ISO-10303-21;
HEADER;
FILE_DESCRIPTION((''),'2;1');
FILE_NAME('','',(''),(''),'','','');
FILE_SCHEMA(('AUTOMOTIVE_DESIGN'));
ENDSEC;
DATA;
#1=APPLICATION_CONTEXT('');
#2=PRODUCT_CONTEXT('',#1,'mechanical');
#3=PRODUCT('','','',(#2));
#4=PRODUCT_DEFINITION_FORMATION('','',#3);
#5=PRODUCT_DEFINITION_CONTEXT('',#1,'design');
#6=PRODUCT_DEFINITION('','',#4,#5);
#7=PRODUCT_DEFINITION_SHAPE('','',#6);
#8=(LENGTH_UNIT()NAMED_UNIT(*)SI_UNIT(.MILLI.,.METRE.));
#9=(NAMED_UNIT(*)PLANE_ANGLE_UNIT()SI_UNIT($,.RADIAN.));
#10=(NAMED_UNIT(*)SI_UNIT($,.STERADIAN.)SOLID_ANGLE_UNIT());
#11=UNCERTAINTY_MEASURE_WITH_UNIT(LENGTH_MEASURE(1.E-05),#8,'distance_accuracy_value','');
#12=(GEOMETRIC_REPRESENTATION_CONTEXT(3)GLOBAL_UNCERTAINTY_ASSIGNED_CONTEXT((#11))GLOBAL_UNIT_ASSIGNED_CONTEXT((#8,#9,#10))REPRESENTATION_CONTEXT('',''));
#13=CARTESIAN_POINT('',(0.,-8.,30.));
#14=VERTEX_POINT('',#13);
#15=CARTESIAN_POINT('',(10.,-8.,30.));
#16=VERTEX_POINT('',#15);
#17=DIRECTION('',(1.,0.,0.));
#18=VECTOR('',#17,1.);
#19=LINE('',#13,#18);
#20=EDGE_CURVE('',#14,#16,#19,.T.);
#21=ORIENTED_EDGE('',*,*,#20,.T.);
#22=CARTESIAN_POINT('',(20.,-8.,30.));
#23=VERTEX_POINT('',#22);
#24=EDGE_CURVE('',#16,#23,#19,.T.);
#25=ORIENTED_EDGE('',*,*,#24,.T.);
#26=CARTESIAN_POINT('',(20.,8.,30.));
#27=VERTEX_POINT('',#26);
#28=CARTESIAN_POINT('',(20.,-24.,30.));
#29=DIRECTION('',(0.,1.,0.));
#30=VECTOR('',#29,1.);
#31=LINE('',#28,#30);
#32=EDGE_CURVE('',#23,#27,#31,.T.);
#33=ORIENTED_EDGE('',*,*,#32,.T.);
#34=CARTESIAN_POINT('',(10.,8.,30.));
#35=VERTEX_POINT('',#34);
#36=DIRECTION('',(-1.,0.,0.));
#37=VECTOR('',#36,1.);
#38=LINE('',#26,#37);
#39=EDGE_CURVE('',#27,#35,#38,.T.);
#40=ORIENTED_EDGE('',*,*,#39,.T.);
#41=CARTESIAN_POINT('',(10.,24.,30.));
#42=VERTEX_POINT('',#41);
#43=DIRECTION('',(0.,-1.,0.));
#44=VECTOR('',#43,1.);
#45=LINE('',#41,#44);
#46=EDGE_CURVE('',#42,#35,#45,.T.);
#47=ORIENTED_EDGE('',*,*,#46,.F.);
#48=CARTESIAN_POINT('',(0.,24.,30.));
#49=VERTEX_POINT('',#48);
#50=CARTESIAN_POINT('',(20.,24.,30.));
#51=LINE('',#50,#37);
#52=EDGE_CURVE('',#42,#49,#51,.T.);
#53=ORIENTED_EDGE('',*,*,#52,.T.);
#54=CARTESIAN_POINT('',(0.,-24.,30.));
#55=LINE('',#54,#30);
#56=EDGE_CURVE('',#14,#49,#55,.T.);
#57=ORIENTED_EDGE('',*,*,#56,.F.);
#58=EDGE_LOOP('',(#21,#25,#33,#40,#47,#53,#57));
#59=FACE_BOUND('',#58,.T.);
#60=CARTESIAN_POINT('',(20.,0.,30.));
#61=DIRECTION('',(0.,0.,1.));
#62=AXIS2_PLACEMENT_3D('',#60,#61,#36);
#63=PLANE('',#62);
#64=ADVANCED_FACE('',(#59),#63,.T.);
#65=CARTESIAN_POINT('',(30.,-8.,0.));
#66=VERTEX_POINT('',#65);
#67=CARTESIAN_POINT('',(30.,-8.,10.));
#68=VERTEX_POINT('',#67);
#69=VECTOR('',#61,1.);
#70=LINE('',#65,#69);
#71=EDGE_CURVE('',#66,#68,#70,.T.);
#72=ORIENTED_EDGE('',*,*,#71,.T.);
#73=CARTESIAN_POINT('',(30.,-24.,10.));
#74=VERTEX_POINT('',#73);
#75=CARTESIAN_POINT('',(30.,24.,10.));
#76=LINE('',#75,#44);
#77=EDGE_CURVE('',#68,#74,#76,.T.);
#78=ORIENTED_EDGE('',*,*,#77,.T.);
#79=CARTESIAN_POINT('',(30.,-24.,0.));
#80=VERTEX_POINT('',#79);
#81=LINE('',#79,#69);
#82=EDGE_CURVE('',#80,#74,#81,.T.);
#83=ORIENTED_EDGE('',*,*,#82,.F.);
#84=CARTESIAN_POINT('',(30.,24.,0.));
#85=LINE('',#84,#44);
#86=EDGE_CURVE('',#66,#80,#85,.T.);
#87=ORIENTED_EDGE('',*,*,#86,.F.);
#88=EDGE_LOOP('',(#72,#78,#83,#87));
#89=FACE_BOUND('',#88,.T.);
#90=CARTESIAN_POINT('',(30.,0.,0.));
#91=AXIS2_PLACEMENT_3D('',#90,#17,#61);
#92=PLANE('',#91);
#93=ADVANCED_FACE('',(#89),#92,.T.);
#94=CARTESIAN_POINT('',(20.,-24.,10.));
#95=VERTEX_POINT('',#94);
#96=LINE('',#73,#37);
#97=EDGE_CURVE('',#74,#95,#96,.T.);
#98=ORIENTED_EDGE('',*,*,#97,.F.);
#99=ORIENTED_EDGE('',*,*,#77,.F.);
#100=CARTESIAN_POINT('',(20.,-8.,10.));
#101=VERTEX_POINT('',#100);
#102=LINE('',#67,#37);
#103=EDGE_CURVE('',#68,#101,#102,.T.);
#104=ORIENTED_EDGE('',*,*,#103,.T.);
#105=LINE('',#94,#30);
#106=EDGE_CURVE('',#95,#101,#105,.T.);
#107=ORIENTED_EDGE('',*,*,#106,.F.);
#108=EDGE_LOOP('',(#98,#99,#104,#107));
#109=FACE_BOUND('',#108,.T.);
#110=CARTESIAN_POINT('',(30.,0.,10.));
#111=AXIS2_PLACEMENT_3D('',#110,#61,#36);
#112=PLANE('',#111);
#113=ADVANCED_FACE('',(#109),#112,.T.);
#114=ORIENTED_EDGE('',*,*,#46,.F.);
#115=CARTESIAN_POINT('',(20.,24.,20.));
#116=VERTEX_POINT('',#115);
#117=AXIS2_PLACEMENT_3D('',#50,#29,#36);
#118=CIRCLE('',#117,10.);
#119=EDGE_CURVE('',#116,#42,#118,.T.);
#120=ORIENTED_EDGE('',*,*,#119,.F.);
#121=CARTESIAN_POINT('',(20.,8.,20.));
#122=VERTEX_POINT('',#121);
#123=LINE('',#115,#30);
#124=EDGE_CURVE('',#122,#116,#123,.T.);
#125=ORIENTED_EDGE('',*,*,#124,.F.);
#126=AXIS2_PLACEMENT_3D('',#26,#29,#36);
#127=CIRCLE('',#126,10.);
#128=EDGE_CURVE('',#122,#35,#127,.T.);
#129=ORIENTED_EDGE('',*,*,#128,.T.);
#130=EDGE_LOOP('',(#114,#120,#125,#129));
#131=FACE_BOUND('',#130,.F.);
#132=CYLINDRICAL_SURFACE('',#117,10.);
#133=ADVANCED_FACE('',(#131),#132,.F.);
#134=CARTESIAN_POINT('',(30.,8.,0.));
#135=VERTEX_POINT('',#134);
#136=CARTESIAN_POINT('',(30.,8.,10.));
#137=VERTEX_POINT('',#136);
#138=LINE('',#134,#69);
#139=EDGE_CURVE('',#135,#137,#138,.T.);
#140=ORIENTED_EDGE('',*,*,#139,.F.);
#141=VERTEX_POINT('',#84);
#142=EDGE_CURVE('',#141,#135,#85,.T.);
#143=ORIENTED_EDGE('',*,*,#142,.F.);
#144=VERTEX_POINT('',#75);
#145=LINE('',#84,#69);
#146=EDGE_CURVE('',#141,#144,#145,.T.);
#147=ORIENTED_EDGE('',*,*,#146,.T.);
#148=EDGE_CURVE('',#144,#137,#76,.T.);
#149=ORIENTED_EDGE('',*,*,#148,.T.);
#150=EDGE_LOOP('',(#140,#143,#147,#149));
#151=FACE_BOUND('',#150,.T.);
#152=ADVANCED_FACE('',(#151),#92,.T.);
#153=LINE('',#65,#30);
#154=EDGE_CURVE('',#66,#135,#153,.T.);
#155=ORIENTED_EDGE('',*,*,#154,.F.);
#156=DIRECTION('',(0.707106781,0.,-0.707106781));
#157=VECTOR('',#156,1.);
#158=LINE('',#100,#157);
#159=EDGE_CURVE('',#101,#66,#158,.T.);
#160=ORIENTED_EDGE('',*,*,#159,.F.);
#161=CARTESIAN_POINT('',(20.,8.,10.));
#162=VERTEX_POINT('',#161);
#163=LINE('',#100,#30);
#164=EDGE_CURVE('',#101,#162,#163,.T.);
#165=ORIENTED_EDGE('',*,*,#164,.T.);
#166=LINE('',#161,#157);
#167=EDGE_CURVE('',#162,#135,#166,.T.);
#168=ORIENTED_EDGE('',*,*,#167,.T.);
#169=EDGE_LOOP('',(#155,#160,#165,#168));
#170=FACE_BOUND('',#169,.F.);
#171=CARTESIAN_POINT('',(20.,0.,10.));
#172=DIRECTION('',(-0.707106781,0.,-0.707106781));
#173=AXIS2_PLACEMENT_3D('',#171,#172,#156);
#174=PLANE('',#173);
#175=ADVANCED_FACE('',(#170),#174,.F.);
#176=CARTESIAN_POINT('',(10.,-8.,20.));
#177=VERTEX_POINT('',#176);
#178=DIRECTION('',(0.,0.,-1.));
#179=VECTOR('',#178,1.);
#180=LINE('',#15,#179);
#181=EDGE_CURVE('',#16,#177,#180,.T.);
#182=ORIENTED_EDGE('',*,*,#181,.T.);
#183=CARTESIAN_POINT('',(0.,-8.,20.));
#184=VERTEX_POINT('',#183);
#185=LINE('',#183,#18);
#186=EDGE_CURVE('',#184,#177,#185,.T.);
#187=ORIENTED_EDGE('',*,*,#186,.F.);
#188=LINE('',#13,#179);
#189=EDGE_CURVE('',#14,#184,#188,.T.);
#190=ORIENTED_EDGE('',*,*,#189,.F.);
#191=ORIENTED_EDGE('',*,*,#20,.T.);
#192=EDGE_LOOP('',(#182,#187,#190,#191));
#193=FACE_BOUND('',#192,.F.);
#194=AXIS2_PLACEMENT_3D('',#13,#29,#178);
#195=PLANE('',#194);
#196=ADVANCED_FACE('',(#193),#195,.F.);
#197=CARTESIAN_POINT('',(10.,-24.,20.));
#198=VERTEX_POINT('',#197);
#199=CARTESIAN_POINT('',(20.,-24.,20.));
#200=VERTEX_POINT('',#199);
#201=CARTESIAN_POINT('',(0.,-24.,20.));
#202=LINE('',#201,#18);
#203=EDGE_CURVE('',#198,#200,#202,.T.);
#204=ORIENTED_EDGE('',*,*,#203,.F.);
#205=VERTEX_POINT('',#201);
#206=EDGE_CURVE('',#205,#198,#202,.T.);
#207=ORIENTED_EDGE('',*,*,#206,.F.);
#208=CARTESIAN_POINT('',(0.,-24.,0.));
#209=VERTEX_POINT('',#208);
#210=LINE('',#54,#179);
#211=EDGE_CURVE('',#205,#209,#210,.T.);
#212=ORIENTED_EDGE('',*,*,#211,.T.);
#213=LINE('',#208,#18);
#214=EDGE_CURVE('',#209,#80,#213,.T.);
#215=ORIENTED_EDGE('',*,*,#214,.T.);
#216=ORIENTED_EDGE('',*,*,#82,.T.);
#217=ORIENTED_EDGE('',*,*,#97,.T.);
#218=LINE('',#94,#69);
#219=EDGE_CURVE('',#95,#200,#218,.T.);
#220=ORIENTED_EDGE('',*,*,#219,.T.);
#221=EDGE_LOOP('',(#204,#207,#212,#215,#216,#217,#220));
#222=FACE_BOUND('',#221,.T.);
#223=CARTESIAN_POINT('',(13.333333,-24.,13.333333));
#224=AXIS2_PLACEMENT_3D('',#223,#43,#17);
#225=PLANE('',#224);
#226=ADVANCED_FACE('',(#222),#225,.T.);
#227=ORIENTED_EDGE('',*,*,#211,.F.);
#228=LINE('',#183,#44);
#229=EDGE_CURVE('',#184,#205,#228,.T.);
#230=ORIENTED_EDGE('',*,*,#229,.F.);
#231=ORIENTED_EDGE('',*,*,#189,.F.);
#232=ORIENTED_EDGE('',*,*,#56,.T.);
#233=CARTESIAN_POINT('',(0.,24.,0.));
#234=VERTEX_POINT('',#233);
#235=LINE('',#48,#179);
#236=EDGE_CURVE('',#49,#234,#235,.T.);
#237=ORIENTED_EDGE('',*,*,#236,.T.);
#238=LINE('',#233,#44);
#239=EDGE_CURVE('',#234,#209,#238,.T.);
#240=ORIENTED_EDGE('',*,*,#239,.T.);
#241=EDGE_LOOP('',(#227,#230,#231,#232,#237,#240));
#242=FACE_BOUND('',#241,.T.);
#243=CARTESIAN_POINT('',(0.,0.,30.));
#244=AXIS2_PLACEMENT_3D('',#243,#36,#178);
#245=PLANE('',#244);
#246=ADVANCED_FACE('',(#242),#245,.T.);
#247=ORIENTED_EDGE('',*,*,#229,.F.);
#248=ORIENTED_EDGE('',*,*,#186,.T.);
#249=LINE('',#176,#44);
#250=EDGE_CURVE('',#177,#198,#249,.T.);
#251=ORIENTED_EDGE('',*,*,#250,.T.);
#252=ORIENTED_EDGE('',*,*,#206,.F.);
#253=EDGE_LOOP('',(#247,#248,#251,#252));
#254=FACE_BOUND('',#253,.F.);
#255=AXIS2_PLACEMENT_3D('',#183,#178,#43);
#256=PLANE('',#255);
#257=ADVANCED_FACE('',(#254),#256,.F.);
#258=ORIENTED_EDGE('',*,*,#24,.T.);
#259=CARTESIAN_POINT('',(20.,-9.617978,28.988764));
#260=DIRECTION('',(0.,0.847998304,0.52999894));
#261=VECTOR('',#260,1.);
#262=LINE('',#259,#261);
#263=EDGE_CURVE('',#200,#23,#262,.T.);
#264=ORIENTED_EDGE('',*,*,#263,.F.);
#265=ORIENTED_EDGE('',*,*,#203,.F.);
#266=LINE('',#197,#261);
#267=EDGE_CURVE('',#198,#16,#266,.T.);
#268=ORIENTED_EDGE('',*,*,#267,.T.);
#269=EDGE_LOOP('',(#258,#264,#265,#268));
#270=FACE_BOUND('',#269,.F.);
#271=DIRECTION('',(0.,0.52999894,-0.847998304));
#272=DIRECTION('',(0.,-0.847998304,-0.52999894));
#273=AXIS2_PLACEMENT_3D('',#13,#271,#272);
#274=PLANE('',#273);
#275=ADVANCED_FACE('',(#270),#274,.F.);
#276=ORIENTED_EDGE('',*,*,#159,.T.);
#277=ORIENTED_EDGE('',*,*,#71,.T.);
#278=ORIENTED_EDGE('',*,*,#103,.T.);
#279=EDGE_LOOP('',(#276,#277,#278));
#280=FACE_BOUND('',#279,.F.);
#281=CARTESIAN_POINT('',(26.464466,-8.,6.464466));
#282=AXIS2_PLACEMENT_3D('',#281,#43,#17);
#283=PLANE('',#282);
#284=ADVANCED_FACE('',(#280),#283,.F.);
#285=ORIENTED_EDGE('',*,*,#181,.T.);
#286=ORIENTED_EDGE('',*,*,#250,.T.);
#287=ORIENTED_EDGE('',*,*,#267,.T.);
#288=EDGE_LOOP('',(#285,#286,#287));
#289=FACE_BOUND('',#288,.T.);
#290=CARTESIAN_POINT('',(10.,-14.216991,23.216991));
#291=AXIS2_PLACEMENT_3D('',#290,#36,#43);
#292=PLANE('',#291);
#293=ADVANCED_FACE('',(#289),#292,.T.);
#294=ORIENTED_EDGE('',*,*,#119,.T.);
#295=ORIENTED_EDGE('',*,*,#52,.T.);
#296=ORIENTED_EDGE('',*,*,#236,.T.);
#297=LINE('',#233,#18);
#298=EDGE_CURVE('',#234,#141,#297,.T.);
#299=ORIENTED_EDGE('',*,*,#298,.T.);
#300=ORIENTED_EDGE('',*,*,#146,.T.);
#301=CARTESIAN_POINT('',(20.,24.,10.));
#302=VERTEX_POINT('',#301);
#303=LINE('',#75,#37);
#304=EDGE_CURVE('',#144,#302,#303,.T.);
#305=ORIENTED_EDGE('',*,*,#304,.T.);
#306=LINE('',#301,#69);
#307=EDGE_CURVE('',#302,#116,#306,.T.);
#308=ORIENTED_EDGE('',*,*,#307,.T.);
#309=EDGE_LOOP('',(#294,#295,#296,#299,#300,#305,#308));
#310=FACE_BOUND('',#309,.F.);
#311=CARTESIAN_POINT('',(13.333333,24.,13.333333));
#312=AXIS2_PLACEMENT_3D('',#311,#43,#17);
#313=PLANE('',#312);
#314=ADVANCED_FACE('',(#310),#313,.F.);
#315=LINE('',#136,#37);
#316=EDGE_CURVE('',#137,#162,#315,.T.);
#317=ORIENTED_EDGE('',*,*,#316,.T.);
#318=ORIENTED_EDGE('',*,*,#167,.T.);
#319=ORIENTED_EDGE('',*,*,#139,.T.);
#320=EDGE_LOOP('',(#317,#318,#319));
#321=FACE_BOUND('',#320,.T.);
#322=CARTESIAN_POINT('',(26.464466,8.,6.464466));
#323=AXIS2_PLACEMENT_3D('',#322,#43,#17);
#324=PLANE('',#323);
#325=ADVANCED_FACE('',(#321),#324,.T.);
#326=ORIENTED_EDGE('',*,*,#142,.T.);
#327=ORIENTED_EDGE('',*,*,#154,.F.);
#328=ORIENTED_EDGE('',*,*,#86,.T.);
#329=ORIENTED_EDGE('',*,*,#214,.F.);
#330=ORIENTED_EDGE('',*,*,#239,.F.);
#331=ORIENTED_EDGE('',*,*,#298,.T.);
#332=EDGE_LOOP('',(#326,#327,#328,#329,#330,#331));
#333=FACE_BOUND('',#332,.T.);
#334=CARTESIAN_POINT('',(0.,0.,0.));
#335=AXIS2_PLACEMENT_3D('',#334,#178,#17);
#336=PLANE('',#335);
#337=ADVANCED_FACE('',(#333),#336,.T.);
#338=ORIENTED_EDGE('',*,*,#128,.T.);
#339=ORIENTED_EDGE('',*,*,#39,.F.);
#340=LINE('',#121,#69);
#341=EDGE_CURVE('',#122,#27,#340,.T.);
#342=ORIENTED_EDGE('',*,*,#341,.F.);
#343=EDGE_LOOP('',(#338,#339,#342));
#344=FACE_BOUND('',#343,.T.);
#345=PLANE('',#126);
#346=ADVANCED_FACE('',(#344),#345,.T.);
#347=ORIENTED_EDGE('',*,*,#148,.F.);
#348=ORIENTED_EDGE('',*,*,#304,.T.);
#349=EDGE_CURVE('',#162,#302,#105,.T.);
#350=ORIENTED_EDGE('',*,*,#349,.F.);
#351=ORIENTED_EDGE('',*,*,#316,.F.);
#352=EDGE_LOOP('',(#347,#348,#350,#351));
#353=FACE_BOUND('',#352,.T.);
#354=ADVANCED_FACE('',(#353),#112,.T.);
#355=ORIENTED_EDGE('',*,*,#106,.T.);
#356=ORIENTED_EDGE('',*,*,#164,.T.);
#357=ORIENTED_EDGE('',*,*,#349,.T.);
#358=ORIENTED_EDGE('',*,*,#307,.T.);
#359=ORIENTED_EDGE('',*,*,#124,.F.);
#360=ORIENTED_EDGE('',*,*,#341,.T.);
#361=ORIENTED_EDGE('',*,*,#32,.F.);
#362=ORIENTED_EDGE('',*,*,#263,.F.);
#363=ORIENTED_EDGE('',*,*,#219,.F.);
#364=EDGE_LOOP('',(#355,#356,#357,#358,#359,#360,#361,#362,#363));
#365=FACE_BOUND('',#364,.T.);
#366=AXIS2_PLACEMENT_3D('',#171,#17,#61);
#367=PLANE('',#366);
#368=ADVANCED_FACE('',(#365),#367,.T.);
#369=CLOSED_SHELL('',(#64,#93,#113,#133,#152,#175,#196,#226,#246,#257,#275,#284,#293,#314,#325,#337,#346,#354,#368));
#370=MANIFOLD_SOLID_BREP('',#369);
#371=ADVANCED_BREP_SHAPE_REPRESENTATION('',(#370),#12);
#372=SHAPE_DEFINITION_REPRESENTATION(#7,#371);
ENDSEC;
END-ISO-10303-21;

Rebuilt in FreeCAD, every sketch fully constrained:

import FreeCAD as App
import Part
import Sketcher
from FreeCAD import Vector
Q = App.Units.Quantity

doc = App.newDocument("Part")
body = doc.addObject("PartDesign::Body", "Body")

# Sketch on XZ plane
sketch1 = body.newObject("Sketcher::SketchObject", "Sketch")
sketch1.AttachmentSupport = (doc.getObject("XZ_Plane"), [""])
sketch1.MapMode = "FlatFace"
sketch1.addGeometry(Part.LineSegment(Vector(0, 30, 0), Vector(0, 0, 0)), False)
sketch1.addGeometry(Part.LineSegment(Vector(0, 0, 0), Vector(30, 0, 0)), False)
sketch1.addGeometry(Part.LineSegment(Vector(30, 0, 0), Vector(30, 10, 0)), False)
sketch1.addGeometry(Part.LineSegment(Vector(30, 10, 0), Vector(20, 10, 0)), False)
sketch1.addGeometry(Part.LineSegment(Vector(20, 10, 0), Vector(20, 30, 0)), False)
sketch1.addGeometry(Part.LineSegment(Vector(20, 30, 0), Vector(0, 30, 0)), False)
sketch1.addConstraint(Sketcher.Constraint("Coincident", 0, 2, 1, 1))
sketch1.addConstraint(Sketcher.Constraint("Coincident", 1, 2, 2, 1))
sketch1.addConstraint(Sketcher.Constraint("Coincident", 2, 2, 3, 1))
sketch1.addConstraint(Sketcher.Constraint("Coincident", 3, 2, 4, 1))
sketch1.addConstraint(Sketcher.Constraint("Coincident", 4, 2, 5, 1))
sketch1.addConstraint(Sketcher.Constraint("Coincident", 5, 2, 0, 1))
sketch1.addConstraint(Sketcher.Constraint("Vertical", 0))
sketch1.addConstraint(Sketcher.Constraint("Horizontal", 1))
sketch1.addConstraint(Sketcher.Constraint("Vertical", 2))
sketch1.addConstraint(Sketcher.Constraint("Horizontal", 3))
sketch1.addConstraint(Sketcher.Constraint("Vertical", 4))
sketch1.addConstraint(Sketcher.Constraint("Horizontal", 5))
sketch1.addConstraint(Sketcher.Constraint("Coincident", 0, 2, -1, 1))
sketch1.addConstraint(Sketcher.Constraint("Equal", 1, 0))
sketch1.addConstraint(Sketcher.Constraint("Equal", 3, 2))
sketch1.addConstraint(Sketcher.Constraint("DistanceX", 1, 1, 1, 2, Q("30 mm")))
sketch1.addConstraint(Sketcher.Constraint("DistanceX", 3, 2, 3, 1, Q("10 mm")))
pad1 = body.newObject("PartDesign::Pad", "Pad")
pad1.Profile = sketch1
pad1.Length = 48
pad1.Midplane = True

# Sketch on XZ plane
sketch2 = body.newObject("Sketcher::SketchObject", "Sketch001")
sketch2.AttachmentSupport = (doc.getObject("XZ_Plane"), [""])
sketch2.MapMode = "FlatFace"
sketch2.addGeometry(Part.LineSegment(Vector(30, 0, 0), Vector(30, 10, 0)), False)
sketch2.addGeometry(Part.LineSegment(Vector(30, 10, 0), Vector(20, 10, 0)), False)
sketch2.addGeometry(Part.LineSegment(Vector(20, 10, 0), Vector(30, 0, 0)), False)
sketch2.addConstraint(Sketcher.Constraint("Coincident", 0, 2, 1, 1))
sketch2.addConstraint(Sketcher.Constraint("Coincident", 1, 2, 2, 1))
sketch2.addConstraint(Sketcher.Constraint("Coincident", 2, 2, 0, 1))
sketch2.addConstraint(Sketcher.Constraint("Vertical", 0))
sketch2.addConstraint(Sketcher.Constraint("Horizontal", 1))
sketch2.addConstraint(Sketcher.Constraint("PointOnObject", 2, 2, -1))
sketch2.addConstraint(Sketcher.Constraint("Equal", 1, 0))
sketch2.addConstraint(Sketcher.Constraint("DistanceX", 1, 2, 1, 1, Q("10 mm")))
sketch2.addConstraint(Sketcher.Constraint("DistanceX", -1, 1, 0, 2, Q("30 mm")))
pocket1 = body.newObject("PartDesign::Pocket", "Pocket")
pocket1.Profile = sketch2
pocket1.Length = 16
pocket1.Midplane = True

# Sketch on YZ plane
sketch3 = body.newObject("Sketcher::SketchObject", "Sketch002")
sketch3.AttachmentSupport = (doc.getObject("YZ_Plane"), [""])
sketch3.MapMode = "FlatFace"
sketch3.addGeometry(Part.LineSegment(Vector(-24, 20, 0), Vector(-24, 30, 0)), False)
sketch3.addGeometry(Part.LineSegment(Vector(-24, 30, 0), Vector(-8, 30, 0)), False)
sketch3.addGeometry(Part.LineSegment(Vector(-8, 30, 0), Vector(-24, 20, 0)), False)
sketch3.addConstraint(Sketcher.Constraint("Coincident", 0, 2, 1, 1))
sketch3.addConstraint(Sketcher.Constraint("Coincident", 1, 2, 2, 1))
sketch3.addConstraint(Sketcher.Constraint("Coincident", 2, 2, 0, 1))
sketch3.addConstraint(Sketcher.Constraint("Vertical", 0))
sketch3.addConstraint(Sketcher.Constraint("Horizontal", 1))
sketch3.addConstraint(Sketcher.Constraint("DistanceX", 1, 1, 1, 2, Q("16 mm")))
sketch3.addConstraint(Sketcher.Constraint("DistanceY", 0, 1, 0, 2, Q("10 mm")))
sketch3.addConstraint(Sketcher.Constraint("DistanceX", 0, 2, -1, 1, Q("24 mm")))
sketch3.addConstraint(Sketcher.Constraint("DistanceY", -1, 1, 0, 2, Q("30 mm")))
pocket2 = body.newObject("PartDesign::Pocket", "Pocket001")
pocket2.Profile = sketch3
pocket2.Type = "ThroughAll"
pocket2.Reversed = True

# Sketch on YZ plane
sketch4 = body.newObject("Sketcher::SketchObject", "Sketch003")
sketch4.AttachmentSupport = (doc.getObject("YZ_Plane"), [""])
sketch4.MapMode = "FlatFace"
sketch4.addGeometry(Part.LineSegment(Vector(-24, 20, 0), Vector(-8, 30, 0)), False)
sketch4.addGeometry(Part.LineSegment(Vector(-8, 30, 0), Vector(-8, 20, 0)), False)
sketch4.addGeometry(Part.LineSegment(Vector(-8, 20, 0), Vector(-24, 20, 0)), False)
sketch4.addConstraint(Sketcher.Constraint("Coincident", 0, 2, 1, 1))
sketch4.addConstraint(Sketcher.Constraint("Coincident", 1, 2, 2, 1))
sketch4.addConstraint(Sketcher.Constraint("Coincident", 2, 2, 0, 1))
sketch4.addConstraint(Sketcher.Constraint("Vertical", 1))
sketch4.addConstraint(Sketcher.Constraint("Horizontal", 2))
sketch4.addConstraint(Sketcher.Constraint("DistanceX", 2, 2, 2, 1, Q("16 mm")))
sketch4.addConstraint(Sketcher.Constraint("DistanceY", 1, 2, 1, 1, Q("10 mm")))
sketch4.addConstraint(Sketcher.Constraint("DistanceX", 0, 2, -1, 1, Q("8 mm")))
sketch4.addConstraint(Sketcher.Constraint("DistanceY", -1, 1, 0, 2, Q("30 mm")))
pocket3 = body.newObject("PartDesign::Pocket", "Pocket002")
pocket3.Profile = sketch4
pocket3.Length = 10
pocket3.Reversed = True

# Sketch on XZ plane
sketch5 = body.newObject("Sketcher::SketchObject", "Sketch004")
sketch5.AttachmentSupport = (doc.getObject("XZ_Plane"), [""])
sketch5.MapMode = "FlatFace"
sketch5.AttachmentOffset = App.Placement(Vector(0, 0, -24), App.Rotation())
sketch5.addGeometry(Part.Circle(Vector(20, 30, 0), Vector(0, 0, 1), 10), False)
sketch5.addConstraint(Sketcher.Constraint("Diameter", 0, Q("20 mm")))
sketch5.addConstraint(Sketcher.Constraint("DistanceX", -1, 1, 0, 3, Q("20 mm")))
sketch5.addConstraint(Sketcher.Constraint("DistanceY", -1, 1, 0, 3, Q("30 mm")))
pocket4 = body.newObject("PartDesign::Pocket", "Pocket003")
pocket4.Profile = sketch5
pocket4.Length = 16
pocket4.Reversed = True

doc.recompute()
